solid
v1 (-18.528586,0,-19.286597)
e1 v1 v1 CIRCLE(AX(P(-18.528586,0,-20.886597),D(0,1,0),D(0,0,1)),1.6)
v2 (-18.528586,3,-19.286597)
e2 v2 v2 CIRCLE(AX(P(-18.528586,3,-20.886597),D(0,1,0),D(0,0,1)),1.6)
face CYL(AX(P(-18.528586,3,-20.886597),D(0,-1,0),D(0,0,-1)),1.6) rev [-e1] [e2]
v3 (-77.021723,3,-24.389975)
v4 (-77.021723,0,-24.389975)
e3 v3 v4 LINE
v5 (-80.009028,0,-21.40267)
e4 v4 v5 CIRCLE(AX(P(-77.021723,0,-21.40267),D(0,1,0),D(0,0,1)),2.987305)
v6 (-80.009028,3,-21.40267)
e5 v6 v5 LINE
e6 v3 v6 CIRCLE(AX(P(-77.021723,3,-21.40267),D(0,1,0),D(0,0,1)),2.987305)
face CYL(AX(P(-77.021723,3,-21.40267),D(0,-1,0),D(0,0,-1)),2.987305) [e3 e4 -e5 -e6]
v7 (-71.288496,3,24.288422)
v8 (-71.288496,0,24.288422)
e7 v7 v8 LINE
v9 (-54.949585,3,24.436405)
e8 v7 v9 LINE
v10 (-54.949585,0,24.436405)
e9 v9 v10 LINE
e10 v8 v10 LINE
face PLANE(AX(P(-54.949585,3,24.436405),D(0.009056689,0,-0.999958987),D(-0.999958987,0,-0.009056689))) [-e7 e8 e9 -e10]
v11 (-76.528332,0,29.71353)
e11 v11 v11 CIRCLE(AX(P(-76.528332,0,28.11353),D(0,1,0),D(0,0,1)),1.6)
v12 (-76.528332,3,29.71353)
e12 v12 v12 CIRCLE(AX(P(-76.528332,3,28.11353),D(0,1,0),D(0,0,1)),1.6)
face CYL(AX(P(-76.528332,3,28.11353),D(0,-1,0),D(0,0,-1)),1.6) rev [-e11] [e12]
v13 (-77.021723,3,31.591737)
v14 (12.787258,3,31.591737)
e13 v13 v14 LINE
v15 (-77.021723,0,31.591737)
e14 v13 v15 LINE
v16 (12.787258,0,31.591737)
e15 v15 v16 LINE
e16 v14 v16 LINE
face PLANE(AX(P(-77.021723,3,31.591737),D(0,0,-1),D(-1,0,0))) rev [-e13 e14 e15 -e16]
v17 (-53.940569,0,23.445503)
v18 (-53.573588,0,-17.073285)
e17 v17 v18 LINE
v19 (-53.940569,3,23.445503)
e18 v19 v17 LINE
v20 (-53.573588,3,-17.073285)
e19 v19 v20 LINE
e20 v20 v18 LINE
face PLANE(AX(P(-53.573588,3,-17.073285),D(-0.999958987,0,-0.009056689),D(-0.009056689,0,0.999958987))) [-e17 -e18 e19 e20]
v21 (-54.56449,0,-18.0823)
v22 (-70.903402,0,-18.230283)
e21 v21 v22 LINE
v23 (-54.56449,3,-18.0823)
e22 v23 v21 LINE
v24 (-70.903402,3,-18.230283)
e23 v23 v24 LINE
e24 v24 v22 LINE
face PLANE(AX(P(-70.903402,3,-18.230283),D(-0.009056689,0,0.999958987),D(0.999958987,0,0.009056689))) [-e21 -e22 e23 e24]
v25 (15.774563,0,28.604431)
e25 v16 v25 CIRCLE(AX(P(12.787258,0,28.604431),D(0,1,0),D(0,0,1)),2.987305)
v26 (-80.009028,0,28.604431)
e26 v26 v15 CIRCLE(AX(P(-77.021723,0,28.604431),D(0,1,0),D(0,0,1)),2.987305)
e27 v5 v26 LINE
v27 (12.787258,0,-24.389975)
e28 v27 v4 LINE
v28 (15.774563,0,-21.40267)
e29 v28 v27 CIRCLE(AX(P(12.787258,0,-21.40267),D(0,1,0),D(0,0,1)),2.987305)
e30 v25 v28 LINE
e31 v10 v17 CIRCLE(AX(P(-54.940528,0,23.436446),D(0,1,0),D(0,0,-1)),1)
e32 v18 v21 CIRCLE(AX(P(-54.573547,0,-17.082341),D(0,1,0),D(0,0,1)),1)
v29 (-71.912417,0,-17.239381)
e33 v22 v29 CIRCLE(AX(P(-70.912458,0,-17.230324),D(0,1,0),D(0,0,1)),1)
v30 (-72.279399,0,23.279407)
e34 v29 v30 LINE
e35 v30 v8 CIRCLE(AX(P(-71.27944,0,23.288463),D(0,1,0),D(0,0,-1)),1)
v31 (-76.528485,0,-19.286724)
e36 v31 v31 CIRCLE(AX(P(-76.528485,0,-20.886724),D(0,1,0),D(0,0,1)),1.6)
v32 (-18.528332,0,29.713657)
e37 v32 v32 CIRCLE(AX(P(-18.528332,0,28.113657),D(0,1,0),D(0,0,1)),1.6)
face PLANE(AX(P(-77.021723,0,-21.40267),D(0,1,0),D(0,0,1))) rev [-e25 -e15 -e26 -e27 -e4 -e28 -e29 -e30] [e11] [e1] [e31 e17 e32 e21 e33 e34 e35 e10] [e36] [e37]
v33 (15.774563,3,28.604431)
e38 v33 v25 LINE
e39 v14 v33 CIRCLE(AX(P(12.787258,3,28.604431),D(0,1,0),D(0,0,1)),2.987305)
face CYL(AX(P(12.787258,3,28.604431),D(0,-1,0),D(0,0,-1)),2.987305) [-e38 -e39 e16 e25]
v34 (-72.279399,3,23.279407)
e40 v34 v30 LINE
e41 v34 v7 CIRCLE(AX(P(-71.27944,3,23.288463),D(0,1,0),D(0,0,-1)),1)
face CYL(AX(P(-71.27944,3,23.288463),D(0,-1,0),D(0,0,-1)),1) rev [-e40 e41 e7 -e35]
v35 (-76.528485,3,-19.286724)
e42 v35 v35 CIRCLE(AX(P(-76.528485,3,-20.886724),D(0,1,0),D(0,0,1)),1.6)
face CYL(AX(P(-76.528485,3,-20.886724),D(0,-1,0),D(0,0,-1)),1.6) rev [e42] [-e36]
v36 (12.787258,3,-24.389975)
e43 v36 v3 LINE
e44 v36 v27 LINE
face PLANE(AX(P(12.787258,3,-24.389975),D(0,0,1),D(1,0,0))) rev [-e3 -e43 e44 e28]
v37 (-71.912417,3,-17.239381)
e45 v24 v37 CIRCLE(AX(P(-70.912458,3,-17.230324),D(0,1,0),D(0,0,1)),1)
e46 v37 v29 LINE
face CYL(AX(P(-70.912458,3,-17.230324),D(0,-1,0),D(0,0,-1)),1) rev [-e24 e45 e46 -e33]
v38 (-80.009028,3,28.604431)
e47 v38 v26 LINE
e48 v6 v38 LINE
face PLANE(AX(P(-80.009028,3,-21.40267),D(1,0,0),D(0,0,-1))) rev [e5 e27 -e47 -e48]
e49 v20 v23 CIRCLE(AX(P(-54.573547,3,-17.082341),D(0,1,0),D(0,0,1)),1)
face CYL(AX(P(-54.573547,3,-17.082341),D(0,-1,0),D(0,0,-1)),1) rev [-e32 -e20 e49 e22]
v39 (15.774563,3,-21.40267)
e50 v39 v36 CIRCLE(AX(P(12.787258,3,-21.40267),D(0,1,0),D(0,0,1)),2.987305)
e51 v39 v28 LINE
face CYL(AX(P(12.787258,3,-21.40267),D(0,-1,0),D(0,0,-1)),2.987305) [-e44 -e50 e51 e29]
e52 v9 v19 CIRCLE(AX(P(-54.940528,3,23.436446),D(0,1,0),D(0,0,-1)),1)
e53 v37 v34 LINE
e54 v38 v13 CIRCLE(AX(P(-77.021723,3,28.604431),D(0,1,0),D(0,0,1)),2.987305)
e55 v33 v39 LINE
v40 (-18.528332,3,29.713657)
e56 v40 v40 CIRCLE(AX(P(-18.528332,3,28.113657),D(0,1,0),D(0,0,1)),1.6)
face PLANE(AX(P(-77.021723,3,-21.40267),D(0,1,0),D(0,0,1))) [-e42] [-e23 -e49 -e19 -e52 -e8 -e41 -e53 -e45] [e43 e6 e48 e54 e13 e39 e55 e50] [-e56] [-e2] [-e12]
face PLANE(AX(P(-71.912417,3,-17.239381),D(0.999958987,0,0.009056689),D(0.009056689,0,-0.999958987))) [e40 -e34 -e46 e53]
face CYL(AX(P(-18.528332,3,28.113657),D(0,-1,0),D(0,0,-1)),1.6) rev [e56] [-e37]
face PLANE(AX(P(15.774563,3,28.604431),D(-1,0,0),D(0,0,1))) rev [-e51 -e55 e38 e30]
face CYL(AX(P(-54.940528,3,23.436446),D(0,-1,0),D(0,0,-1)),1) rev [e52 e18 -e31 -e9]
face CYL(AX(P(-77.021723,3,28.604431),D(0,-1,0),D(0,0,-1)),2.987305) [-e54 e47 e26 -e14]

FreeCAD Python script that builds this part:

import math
import FreeCAD as App
import Part
import Sketcher

V = App.Vector

doc = App.newDocument("Part")
body = doc.addObject("PartDesign::Body", "Body")

# Sketch on XZ plane
sketch1 = body.newObject("Sketcher::SketchObject", "Sketch")
sketch1.AttachmentSupport = (doc.getObject("XZ_Plane"), [""])
sketch1.MapMode = "FlatFace"
sketch1.addGeometry([
    Part.LineSegment(V(-80.009028, -21.40267, 0), V(-80.009028, 28.604431, 0)),  # 0
    Part.ArcOfCircle(Part.Circle(V(-77.021723, 28.604431, 0), V(0, 0, 1), 2.987305), math.radians(90), math.radians(180)),  # 1
    Part.LineSegment(V(-77.021723, 31.591737, 0), V(12.787258, 31.591737, 0)),  # 2
    Part.ArcOfCircle(Part.Circle(V(12.787258, 28.604431, 0), V(0, 0, 1), 2.987305), math.radians(0), math.radians(90)),  # 3
    Part.LineSegment(V(15.774563, 28.604431, 0), V(15.774563, -21.40267, 0)),  # 4
    Part.ArcOfCircle(Part.Circle(V(12.787258, -21.40267, 0), V(0, 0, 1), 2.987305), math.radians(-90), math.radians(0)),  # 5
    Part.LineSegment(V(12.787258, -24.389975, 0), V(-77.021723, -24.389975, 0)),  # 6
    Part.ArcOfCircle(Part.Circle(V(-77.021723, -21.40267, 0), V(0, 0, 1), 2.987305), math.radians(180), math.radians(270)),  # 7
    Part.Circle(V(-76.528332, 28.11353, 0), V(0, 0, 1), 1.6),  # 8
    Part.Circle(V(-18.528332, 28.113657, 0), V(0, 0, 1), 1.6),  # 9
    Part.ArcOfCircle(Part.Circle(V(-70.912458, -17.230324, 0), V(0, 0, 1), 1), math.radians(-179.481083), math.radians(-89.481083)),  # 10
    Part.LineSegment(V(-70.903402, -18.230283, 0), V(-54.56449, -18.0823, 0)),  # 11
    Part.ArcOfCircle(Part.Circle(V(-54.573547, -17.082341, 0), V(0, 0, 1), 1), math.radians(-89.481083), math.radians(0.518917)),  # 12
    Part.LineSegment(V(-53.573588, -17.073285, 0), V(-53.940569, 23.445503, 0)),  # 13
    Part.ArcOfCircle(Part.Circle(V(-54.940528, 23.436446, 0), V(0, 0, 1), 1), math.radians(0.518917), math.radians(90.518917)),  # 14
    Part.LineSegment(V(-54.949585, 24.436405, 0), V(-71.288496, 24.288422, 0)),  # 15
    Part.ArcOfCircle(Part.Circle(V(-71.27944, 23.288463, 0), V(0, 0, 1), 1), math.radians(90.518917), math.radians(180.518917)),  # 16
    Part.LineSegment(V(-72.279399, 23.279407, 0), V(-71.912417, -17.239381, 0)),  # 17
    Part.Circle(V(-76.528485, -20.886724, 0), V(0, 0, 1), 1.6),  # 18
    Part.Circle(V(-18.528586, -20.886597, 0), V(0, 0, 1), 1.6),  # 19
], False)
sketch1.addConstraint([
    Sketcher.Constraint("Coincident", 0, 2, 1, 2),
    Sketcher.Constraint("Coincident", 1, 1, 2, 1),
    Sketcher.Constraint("Coincident", 2, 2, 3, 2),
    Sketcher.Constraint("Coincident", 3, 1, 4, 1),
    Sketcher.Constraint("Coincident", 4, 2, 5, 2),
    Sketcher.Constraint("Coincident", 5, 1, 6, 1),
    Sketcher.Constraint("Coincident", 6, 2, 7, 2),
    Sketcher.Constraint("Coincident", 7, 1, 0, 1),
    Sketcher.Constraint("Coincident", 10, 2, 11, 1),
    Sketcher.Constraint("Coincident", 11, 2, 12, 1),
    Sketcher.Constraint("Coincident", 12, 2, 13, 1),
    Sketcher.Constraint("Coincident", 13, 2, 14, 1),
    Sketcher.Constraint("Coincident", 14, 2, 15, 1),
    Sketcher.Constraint("Coincident", 15, 2, 16, 1),
    Sketcher.Constraint("Coincident", 16, 2, 17, 1),
    Sketcher.Constraint("Coincident", 17, 2, 10, 1),
    Sketcher.Constraint("Vertical", 0),
    Sketcher.Constraint("Horizontal", 2),
    Sketcher.Constraint("Vertical", 4),
    Sketcher.Constraint("Horizontal", 6),
    Sketcher.Constraint("Radius", 10, 1.0),
    Sketcher.Constraint("Radius", 12, 1.0),
    Sketcher.Constraint("Radius", 14, 1.0),
    Sketcher.Constraint("Radius", 16, 1.0),
    Sketcher.Constraint("Diameter", 8, 3.2),
    Sketcher.Constraint("Diameter", 9, 3.2),
    Sketcher.Constraint("Diameter", 18, 3.2),
    Sketcher.Constraint("Diameter", 19, 3.2),
    Sketcher.Constraint("DistanceX", 8, 3, 9, 3, 58.0),
    Sketcher.Constraint("DistanceY", 0, 1, 0, 2, 50.007102),
    Sketcher.Constraint("DistanceY", 4, 2, 4, 1, 50.007102),
    Sketcher.Constraint("Radius", 1, 2.987305),
    Sketcher.Constraint("Radius", 3, 2.987305),
    Sketcher.Constraint("Radius", 5, 2.987305),
    Sketcher.Constraint("Radius", 7, 2.987305),
    Sketcher.Constraint("DistanceY", 12, 3, 9, 3, 45.195998),
    Sketcher.Constraint("DistanceY", 10, 2, 12, 2, 1.156998),
    Sketcher.Constraint("DistanceX", 2, 1, 2, 2, 89.808981),
    Sketcher.Constraint("DistanceX", 6, 2, 6, 1, 89.808981),
    Sketcher.Constraint("DistanceX", 10, 2, -1, 1, 70.903402),
    Sketcher.Constraint("DistanceY", 11, 2, -1, 1, 18.0823),
    Sketcher.Constraint("DistanceX", 16, 2, -1, 1, 72.279399),
    Sketcher.Constraint("DistanceY", 5, 3, 3, 3, 50.007102),
    Sketcher.Constraint("DistanceY", 8, 3, 1, 3, 0.490902),
    Sketcher.Constraint("DistanceY", 18, 3, 10, 3, 3.6564),
    Sketcher.Constraint("DistanceY", 8, 3, 0, 2, 0.490902),
    Sketcher.Constraint("DistanceX", 0, 2, 14, 3, 25.0685),
    Sketcher.Constraint("DistanceY", 5, 3, 3, 1, 50.007102),
    Sketcher.Constraint("Distance", 11, 16.339582),
    Sketcher.Constraint("Distance", 13, 40.520449),
    Sketcher.Constraint("Distance", 15, 16.339582),
    Sketcher.Constraint("Distance", 17, 40.520449),
    Sketcher.Constraint("DistanceY", -1, 1, 1, 3, 28.604431),
    Sketcher.Constraint("DistanceX", -1, 1, 3, 3, 12.787258),
    Sketcher.Constraint("DistanceX", 10, 3, -1, 1, 70.912458),
    Sketcher.Constraint("DistanceY", 12, 3, -1, 1, 17.082341),
    Sketcher.Constraint("DistanceX", 16, 3, -1, 1, 71.27944),
    Sketcher.Constraint("DistanceX", 0, 2, -1, 1, 80.009028),
    Sketcher.Constraint("DistanceX", -1, 1, 2, 2, 12.787258),
    Sketcher.Constraint("DistanceX", -1, 1, 5, 1, 12.787258),
    Sketcher.Constraint("DistanceX", 11, 2, -1, 1, 54.56449),
    Sketcher.Constraint("DistanceX", 13, 2, -1, 1, 53.940569),
    Sketcher.Constraint("DistanceY", 17, 2, -1, 1, 17.239381),
    Sketcher.Constraint("DistanceX", 1, 3, 8, 3, 0.493391),
    Sketcher.Constraint("DistanceX", 7, 3, 18, 3, 0.493239),
    Sketcher.Constraint("DistanceX", 12, 3, 19, 3, 36.044961),
    Sketcher.Constraint("DistanceY", 19, 3, 3, 1, 49.491029),
    Sketcher.Constraint("DistanceY", 14, 3, 14, 2, 0.999959),
])
pad1 = body.newObject("PartDesign::Pad", "Pad")
pad1.Profile = sketch1
pad1.Length = 3
pad1.Reversed = True

doc.recompute()
